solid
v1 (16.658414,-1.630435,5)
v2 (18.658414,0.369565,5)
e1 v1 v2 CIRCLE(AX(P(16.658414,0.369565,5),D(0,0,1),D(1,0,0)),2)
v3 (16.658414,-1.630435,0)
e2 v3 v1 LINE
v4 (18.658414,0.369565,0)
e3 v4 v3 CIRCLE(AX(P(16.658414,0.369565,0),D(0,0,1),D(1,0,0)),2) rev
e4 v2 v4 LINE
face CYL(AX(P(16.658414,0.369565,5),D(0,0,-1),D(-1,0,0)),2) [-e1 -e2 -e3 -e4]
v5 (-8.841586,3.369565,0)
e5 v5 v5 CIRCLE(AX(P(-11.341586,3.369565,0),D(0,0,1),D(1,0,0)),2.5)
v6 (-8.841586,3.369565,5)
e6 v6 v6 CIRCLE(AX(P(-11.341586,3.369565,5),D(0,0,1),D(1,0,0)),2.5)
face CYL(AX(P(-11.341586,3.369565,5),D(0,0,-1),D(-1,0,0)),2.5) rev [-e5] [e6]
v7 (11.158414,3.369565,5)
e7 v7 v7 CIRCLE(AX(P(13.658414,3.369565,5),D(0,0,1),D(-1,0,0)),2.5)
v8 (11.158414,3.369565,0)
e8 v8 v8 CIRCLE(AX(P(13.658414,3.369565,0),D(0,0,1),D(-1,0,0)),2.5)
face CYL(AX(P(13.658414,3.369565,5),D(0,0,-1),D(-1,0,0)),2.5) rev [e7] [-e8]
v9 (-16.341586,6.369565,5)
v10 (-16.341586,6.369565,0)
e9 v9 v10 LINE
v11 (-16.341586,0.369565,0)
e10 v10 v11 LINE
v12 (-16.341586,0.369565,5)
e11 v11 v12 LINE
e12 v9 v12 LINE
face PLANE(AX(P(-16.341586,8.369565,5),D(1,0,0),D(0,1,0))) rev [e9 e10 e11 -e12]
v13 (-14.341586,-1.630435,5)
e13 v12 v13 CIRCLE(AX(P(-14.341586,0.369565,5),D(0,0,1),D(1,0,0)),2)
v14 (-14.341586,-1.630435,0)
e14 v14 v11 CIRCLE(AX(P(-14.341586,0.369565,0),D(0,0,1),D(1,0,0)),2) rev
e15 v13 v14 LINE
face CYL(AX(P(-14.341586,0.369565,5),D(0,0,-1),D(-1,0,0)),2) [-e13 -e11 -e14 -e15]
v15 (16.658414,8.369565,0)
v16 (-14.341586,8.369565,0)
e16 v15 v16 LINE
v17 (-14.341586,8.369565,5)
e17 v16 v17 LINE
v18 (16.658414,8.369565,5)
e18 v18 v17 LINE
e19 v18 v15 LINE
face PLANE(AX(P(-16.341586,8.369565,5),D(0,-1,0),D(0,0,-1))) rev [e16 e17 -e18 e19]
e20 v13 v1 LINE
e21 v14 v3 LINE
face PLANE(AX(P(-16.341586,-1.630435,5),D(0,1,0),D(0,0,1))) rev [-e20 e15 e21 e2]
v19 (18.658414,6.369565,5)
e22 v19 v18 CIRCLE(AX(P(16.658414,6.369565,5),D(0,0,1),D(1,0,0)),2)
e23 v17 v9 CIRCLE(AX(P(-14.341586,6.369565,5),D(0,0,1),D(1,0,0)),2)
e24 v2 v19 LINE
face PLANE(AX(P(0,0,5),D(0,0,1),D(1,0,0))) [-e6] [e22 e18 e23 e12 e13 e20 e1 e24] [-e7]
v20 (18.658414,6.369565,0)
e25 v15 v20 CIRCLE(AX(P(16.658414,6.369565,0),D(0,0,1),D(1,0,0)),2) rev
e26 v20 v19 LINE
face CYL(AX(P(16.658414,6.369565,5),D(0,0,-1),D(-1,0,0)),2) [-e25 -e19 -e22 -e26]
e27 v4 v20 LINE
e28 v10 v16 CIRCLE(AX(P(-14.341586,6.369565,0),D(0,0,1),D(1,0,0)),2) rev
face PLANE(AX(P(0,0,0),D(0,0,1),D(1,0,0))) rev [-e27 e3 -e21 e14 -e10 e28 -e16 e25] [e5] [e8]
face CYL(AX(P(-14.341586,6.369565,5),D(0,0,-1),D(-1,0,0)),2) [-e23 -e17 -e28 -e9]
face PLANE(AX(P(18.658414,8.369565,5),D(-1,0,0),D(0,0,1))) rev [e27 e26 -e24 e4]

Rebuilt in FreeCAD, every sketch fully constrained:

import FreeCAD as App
import Part
import Sketcher


def edges_at(feature, points):
    """Names of the edges that pass closest to the given points."""
    edges = feature.Shape.Edges
    near = lambda p: min(range(len(edges)), key=lambda i: edges[i].distToShape(Part.Vertex(*p))[0])
    return sorted({f"Edge{near(p) + 1}" for p in points})


def add_polygon(sketch, points):
    """Adds a closed chain of lines whose ends are joined by coincident constraints."""
    first, n = sketch.GeometryCount, len(points)
    for a, b in zip(points, points[1:] + points[:1]):
        sketch.addGeometry(Part.LineSegment(App.Vector(*a, 0), App.Vector(*b, 0)), False)
    for i in range(n):
        sketch.addConstraint(Sketcher.Constraint("Coincident", first + i, 2, first + (i + 1) % n, 1))

doc = App.newDocument("Part")
body = doc.addObject("PartDesign::Body", "Body")

sketch1 = body.newObject("Sketcher::SketchObject", "Sketch")
sketch1.AttachmentSupport = (doc.getObject("XY_Plane"), [""])
sketch1.MapMode = "FlatFace"
add_polygon(sketch1, [(-16.3, 8.4), (-16.3, -1.6), (18.7, -1.6), (18.7, 8.4)])
sketch1.addGeometry(Part.Circle(App.Vector(-11.3, 3.4, 0), App.Vector(0, 0, 1), 2.5), False)
sketch1.addGeometry(Part.Circle(App.Vector(13.7, 3.4, 0), App.Vector(0, 0, 1), 2.5), False)
sketch1.addConstraint([
    Sketcher.Constraint("Vertical", 0),
    Sketcher.Constraint("Horizontal", 1),
    Sketcher.Constraint("Vertical", 2),
    Sketcher.Constraint("Horizontal", 3),
    Sketcher.Constraint("Equal", 4, 5),
    Sketcher.Constraint("Horizontal", 4, 3, 5, 3),
    Sketcher.Constraint("Diameter", 4, 5.0),
    Sketcher.Constraint("DistanceX", 1, 1, 1, 2, 35.0),
    Sketcher.Constraint("DistanceY", 0, 2, 0, 1, 10.0),
    Sketcher.Constraint("DistanceX", 4, 3, 5, 3, 25.0),
    Sketcher.Constraint("DistanceX", 0, 2, 4, 3, 5.0),
    Sketcher.Constraint("DistanceY", 0, 2, 4, 3, 5.0),
    Sketcher.Constraint("DistanceX", 4, 3, -1, 1, 11.341586),
    Sketcher.Constraint("DistanceY", -1, 1, 4, 3, 3.369565),
])
pad1 = body.newObject("PartDesign::Pad", "Pad")
pad1.Profile = sketch1
pad1.Length = 5
doc.recompute()

fillet = body.newObject("PartDesign::Fillet", "Fillet")
fillet.Base = (pad1, edges_at(pad1, [(-16.342, 8.37, 2.5)]))
fillet.Radius = 2
doc.recompute()

fillet2 = body.newObject("PartDesign::Fillet", "Fillet001")
fillet2.Base = (fillet, edges_at(fillet, [(-16.342, -1.63, 2.5)]))
fillet2.Radius = 2
doc.recompute()

fillet3 = body.newObject("PartDesign::Fillet", "Fillet002")
fillet3.Base = (fillet2, edges_at(fillet2, [(18.658, 8.37, 2.5)]))
fillet3.Radius = 2
doc.recompute()

fillet4 = body.newObject("PartDesign::Fillet", "Fillet003")
fillet4.Base = (fillet3, edges_at(fillet3, [(18.658, -1.63, 2.5)]))
fillet4.Radius = 2

doc.recompute()
